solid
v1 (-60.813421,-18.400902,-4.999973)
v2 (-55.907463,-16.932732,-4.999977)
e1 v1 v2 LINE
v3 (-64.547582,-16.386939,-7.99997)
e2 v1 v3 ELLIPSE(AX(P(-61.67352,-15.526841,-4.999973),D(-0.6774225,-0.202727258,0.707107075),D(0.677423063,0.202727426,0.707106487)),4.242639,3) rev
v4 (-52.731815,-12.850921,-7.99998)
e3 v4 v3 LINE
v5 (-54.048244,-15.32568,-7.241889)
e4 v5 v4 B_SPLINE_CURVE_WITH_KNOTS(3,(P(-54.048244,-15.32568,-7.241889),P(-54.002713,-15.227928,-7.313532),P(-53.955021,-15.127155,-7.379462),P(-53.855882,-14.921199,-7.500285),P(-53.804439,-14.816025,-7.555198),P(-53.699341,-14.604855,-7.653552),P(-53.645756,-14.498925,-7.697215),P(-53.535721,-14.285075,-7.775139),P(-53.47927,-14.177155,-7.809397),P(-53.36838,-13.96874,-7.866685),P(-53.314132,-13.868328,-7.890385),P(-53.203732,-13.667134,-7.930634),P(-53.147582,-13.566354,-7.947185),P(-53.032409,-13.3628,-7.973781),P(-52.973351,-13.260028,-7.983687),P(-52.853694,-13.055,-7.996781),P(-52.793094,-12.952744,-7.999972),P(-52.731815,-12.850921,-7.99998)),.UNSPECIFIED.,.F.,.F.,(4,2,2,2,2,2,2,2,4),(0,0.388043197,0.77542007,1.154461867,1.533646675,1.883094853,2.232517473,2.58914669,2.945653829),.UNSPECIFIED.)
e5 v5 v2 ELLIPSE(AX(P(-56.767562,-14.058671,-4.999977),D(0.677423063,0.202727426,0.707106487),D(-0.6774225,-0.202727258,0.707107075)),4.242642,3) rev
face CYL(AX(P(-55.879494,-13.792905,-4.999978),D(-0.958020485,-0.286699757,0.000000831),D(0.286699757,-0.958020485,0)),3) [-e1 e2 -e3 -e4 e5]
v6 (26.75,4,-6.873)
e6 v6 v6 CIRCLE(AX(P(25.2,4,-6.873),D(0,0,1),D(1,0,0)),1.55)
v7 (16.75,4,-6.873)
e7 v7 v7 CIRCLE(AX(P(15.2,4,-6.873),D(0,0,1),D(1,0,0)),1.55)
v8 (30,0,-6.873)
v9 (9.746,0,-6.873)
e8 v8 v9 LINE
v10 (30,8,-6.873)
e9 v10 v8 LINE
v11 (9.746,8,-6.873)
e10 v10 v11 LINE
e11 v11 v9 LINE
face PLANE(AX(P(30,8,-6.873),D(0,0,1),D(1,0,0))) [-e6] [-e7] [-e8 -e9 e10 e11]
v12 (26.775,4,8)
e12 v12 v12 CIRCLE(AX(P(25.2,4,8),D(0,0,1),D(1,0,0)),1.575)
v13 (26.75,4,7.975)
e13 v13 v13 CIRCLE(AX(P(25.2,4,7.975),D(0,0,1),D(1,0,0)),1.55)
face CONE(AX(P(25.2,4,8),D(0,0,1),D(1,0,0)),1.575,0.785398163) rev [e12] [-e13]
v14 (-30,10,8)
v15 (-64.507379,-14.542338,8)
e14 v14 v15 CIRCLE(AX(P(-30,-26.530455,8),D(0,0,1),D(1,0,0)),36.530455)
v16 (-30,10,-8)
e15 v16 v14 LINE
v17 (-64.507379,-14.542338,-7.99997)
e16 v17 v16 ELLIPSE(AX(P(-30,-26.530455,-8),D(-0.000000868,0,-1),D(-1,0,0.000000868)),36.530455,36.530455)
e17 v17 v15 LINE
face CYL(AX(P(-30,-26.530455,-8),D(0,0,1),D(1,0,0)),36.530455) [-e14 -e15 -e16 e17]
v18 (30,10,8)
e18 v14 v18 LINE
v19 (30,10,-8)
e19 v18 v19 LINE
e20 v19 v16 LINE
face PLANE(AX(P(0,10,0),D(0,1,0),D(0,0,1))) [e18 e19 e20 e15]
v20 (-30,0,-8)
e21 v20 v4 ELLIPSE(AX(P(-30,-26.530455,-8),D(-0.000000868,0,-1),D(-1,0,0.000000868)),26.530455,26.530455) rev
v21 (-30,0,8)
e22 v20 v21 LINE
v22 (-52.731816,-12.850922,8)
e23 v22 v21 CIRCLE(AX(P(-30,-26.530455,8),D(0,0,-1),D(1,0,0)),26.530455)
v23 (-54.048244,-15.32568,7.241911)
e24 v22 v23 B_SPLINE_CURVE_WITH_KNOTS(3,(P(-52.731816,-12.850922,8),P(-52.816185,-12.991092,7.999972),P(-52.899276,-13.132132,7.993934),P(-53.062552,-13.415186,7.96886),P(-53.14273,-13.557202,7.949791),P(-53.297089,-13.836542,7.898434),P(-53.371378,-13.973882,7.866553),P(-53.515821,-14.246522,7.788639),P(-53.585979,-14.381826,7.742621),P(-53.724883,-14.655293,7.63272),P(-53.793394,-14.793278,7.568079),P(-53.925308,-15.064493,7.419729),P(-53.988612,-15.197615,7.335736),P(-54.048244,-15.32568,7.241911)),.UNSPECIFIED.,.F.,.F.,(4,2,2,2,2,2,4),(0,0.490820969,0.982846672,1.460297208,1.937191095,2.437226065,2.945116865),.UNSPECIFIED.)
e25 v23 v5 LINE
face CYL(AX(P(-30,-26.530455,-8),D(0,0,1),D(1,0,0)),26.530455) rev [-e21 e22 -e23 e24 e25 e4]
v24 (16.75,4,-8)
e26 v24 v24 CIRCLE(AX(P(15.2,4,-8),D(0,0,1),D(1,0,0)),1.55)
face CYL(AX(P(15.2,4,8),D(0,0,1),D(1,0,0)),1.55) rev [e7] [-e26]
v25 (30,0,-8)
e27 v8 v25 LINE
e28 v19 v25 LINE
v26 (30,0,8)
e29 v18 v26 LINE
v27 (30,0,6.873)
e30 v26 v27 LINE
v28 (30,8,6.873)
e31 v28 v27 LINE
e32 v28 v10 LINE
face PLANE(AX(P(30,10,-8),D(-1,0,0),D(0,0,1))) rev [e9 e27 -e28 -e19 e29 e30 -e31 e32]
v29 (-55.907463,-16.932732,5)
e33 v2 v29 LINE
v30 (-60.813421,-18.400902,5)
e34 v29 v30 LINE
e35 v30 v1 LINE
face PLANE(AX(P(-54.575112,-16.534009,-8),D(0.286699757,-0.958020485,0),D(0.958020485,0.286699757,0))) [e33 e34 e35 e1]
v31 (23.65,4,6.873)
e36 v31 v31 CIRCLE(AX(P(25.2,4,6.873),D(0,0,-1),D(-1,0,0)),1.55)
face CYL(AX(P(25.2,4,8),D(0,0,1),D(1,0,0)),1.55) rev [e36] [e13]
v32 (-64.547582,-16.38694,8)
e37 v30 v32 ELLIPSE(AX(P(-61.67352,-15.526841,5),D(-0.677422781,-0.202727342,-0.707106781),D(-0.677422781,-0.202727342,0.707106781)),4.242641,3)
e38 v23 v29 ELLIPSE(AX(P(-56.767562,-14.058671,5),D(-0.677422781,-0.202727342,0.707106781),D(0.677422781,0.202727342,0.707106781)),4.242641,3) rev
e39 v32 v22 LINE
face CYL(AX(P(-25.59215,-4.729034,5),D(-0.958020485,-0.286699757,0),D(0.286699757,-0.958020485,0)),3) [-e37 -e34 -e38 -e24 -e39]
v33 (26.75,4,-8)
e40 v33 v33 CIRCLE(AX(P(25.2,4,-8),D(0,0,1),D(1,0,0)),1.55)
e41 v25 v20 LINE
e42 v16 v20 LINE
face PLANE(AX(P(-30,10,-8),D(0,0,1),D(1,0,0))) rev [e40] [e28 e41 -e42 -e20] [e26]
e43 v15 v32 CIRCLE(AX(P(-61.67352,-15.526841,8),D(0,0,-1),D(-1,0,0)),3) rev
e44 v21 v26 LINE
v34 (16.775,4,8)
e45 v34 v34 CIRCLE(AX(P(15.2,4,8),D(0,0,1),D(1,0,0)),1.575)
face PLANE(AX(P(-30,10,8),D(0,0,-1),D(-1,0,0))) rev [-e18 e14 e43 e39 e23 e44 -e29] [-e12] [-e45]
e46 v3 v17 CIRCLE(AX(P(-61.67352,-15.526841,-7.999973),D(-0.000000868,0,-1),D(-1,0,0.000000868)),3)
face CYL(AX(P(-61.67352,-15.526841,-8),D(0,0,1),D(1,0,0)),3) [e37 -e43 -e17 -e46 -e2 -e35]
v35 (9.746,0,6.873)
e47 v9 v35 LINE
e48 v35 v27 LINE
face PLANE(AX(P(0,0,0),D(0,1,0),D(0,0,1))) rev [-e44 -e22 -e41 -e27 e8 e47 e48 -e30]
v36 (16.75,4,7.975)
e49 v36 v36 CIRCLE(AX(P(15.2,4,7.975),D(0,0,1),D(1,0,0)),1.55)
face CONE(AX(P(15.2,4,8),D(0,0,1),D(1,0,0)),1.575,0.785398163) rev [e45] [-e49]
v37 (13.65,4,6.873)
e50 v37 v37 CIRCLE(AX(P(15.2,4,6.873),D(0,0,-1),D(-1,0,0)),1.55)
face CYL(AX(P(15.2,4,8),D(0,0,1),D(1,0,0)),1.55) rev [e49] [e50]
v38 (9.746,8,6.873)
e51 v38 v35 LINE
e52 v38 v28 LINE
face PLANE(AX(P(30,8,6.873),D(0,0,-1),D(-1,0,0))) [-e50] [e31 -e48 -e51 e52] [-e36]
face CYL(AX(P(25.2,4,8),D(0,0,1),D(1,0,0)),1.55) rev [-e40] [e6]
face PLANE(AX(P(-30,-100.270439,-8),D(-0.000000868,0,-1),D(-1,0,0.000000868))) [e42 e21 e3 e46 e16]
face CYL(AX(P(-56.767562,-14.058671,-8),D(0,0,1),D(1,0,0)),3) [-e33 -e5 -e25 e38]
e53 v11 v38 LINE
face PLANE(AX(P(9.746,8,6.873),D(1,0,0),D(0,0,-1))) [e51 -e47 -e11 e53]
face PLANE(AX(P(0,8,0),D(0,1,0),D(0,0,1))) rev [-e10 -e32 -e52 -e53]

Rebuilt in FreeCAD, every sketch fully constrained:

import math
import FreeCAD as App
import Part
import Sketcher

V = App.Vector


def edges_at(feature, points):
    """Names of the edges that pass closest to the given points."""
    edges = feature.Shape.Edges
    near = lambda p: min(range(len(edges)), key=lambda i: edges[i].distToShape(Part.Vertex(*p))[0])
    return sorted({f"Edge{near(p) + 1}" for p in points})

doc = App.newDocument("Part")
body = doc.addObject("PartDesign::Body", "Body")

# Sketch on XZ plane
sketch1 = body.newObject("Sketcher::SketchObject", "Sketch")
sketch1.AttachmentSupport = (doc.getObject("XZ_Plane"), [""])
sketch1.MapMode = "FlatFace"
sketch1.addGeometry(Part.LineSegment(V(-30, -8, 0), V(-30, 8, 0)), False)
sketch1.addGeometry(Part.LineSegment(V(-30, 8, 0), V(30, 8, 0)), False)
sketch1.addGeometry(Part.LineSegment(V(30, 8, 0), V(30, -8, 0)), False)
sketch1.addGeometry(Part.LineSegment(V(30, -8, 0), V(-30, -8, 0)), False)
sketch1.addConstraint(Sketcher.Constraint("Coincident", 0, 2, 1, 1))
sketch1.addConstraint(Sketcher.Constraint("Coincident", 1, 2, 2, 1))
sketch1.addConstraint(Sketcher.Constraint("Coincident", 2, 2, 3, 1))
sketch1.addConstraint(Sketcher.Constraint("Coincident", 3, 2, 0, 1))
sketch1.addConstraint(Sketcher.Constraint("Vertical", 0))
sketch1.addConstraint(Sketcher.Constraint("Horizontal", 1))
sketch1.addConstraint(Sketcher.Constraint("Vertical", 2))
sketch1.addConstraint(Sketcher.Constraint("Horizontal", 3))
sketch1.addConstraint(Sketcher.Constraint("Symmetric", 0, 2, 2, 2, -1, 1))
sketch1.addConstraint(Sketcher.Constraint("DistanceX", 1, 1, 1, 2, 60.0))
sketch1.addConstraint(Sketcher.Constraint("DistanceY", 0, 1, 0, 2, 16.0))
pad1 = body.newObject("PartDesign::Pad", "Pad")
pad1.Profile = sketch1
pad1.Length = 10
pad1.Reversed = True

# Sketch on XZ plane
sketch2 = body.newObject("Sketcher::SketchObject", "Sketch001")
sketch2.AttachmentSupport = (doc.getObject("XZ_Plane"), [""])
sketch2.MapMode = "FlatFace"
sketch2.addGeometry(Part.LineSegment(V(10, -7, 0), V(10, 7, 0)), False)
sketch2.addGeometry(Part.LineSegment(V(10, 7, 0), V(30, 7, 0)), False)
sketch2.addGeometry(Part.LineSegment(V(30, 7, 0), V(30, -7, 0)), False)
sketch2.addGeometry(Part.LineSegment(V(30, -7, 0), V(10, -7, 0)), False)
sketch2.addConstraint(Sketcher.Constraint("Coincident", 0, 2, 1, 1))
sketch2.addConstraint(Sketcher.Constraint("Coincident", 1, 2, 2, 1))
sketch2.addConstraint(Sketcher.Constraint("Coincident", 2, 2, 3, 1))
sketch2.addConstraint(Sketcher.Constraint("Coincident", 3, 2, 0, 1))
sketch2.addConstraint(Sketcher.Constraint("Vertical", 0))
sketch2.addConstraint(Sketcher.Constraint("Horizontal", 1))
sketch2.addConstraint(Sketcher.Constraint("Vertical", 2))
sketch2.addConstraint(Sketcher.Constraint("Horizontal", 3))
sketch2.addConstraint(Sketcher.Constraint("DistanceX", -1, 1, 1, 2, 30.0))
sketch2.addConstraint(Sketcher.Constraint("DistanceX", 1, 1, 1, 2, 20.254))
sketch2.addConstraint(Sketcher.Constraint("DistanceY", 0, 1, 0, 2, 13.746))
sketch2.addConstraint(Sketcher.Constraint("DistanceY", -1, 1, 0, 2, 6.873))
pocket1 = body.newObject("PartDesign::Pocket", "Pocket")
pocket1.Profile = sketch2
pocket1.Length = 8

# Sketch on XY plane
sketch3 = body.newObject("Sketcher::SketchObject", "Sketch002")
sketch3.AttachmentSupport = (doc.getObject("XY_Plane"), [""])
sketch3.MapMode = "FlatFace"
sketch3.AttachmentOffset = App.Placement(V(0, 0, 8), App.Rotation())
sketch3.addGeometry(Part.Circle(V(15.2, 4, 0), V(0, 0, 1), 1.6), False)
sketch3.addGeometry(Part.Circle(V(25.2, 4, 0), V(0, 0, 1), 1.6), False)
sketch3.addConstraint(Sketcher.Constraint("Equal", 0, 1))
sketch3.addConstraint(Sketcher.Constraint("Horizontal", 0, 3, 1, 3))
sketch3.addConstraint(Sketcher.Constraint("Diameter", 0, 3.1))
sketch3.addConstraint(Sketcher.Constraint("DistanceY", -1, 1, 0, 3, 4.0))
sketch3.addConstraint(Sketcher.Constraint("DistanceX", 0, 3, 1, 3, 10.0))
sketch3.addConstraint(Sketcher.Constraint("DistanceX", -1, 1, 0, 3, 15.2))
doc.recompute()
hole = body.newObject("PartDesign::Hole", "Hole")
hole.Profile = sketch3
hole.ThreadType = "None"
hole.Diameter = 3.1
hole.DepthType = "ThroughAll"
hole.HoleCutType = "Countersink"
hole.HoleCutDiameter = 3.15
hole.HoleCutCountersinkAngle = 90

# Sketch on XZ plane
sketch4 = body.newObject("Sketcher::SketchObject", "Sketch003")
sketch4.AttachmentSupport = (doc.getObject("XZ_Plane"), [""])
sketch4.MapMode = "FlatFace"
sketch4.AttachmentOffset = App.Placement(V(0, 0, -10), App.Rotation())
sketch4.addGeometry(Part.LineSegment(V(-30, -8, 0), V(-104, -8, 0)), False)
sketch4.addGeometry(Part.LineSegment(V(-104, -8, 0), V(-104, 8, 0)), False)
sketch4.addGeometry(Part.LineSegment(V(-104, 8, 0), V(-30, 8, 0)), False)
sketch4.addGeometry(Part.LineSegment(V(-30, 8, 0), V(-30, -8, 0)), False)
sketch4.addConstraint(Sketcher.Constraint("Coincident", 0, 2, 1, 1))
sketch4.addConstraint(Sketcher.Constraint("Coincident", 1, 2, 2, 1))
sketch4.addConstraint(Sketcher.Constraint("Coincident", 2, 2, 3, 1))
sketch4.addConstraint(Sketcher.Constraint("Coincident", 3, 2, 0, 1))
sketch4.addConstraint(Sketcher.Constraint("Vertical", 1))
sketch4.addConstraint(Sketcher.Constraint("Horizontal", 2))
sketch4.addConstraint(Sketcher.Constraint("Vertical", 3))
sketch4.addConstraint(Sketcher.Constraint("DistanceY", 3, 2, 3, 1, 16.0))
sketch4.addConstraint(Sketcher.Constraint("DistanceY", -1, 1, 1, 2, 8.0))
sketch4.addConstraint(Sketcher.Constraint("DistanceX", 2, 2, -1, 1, 30.0))
sketch4.addConstraint(Sketcher.Constraint("DistanceX", 2, 1, 2, 2, 73.550248))
sketch4.addConstraint(Sketcher.Constraint("DistanceY", 1, 1, 1, 2, 15.999936))
pad2 = body.newObject("PartDesign::Pad", "Pad001")
pad2.Profile = sketch4
pad2.Length = 35

# Sketch on XY plane
sketch5 = body.newObject("Sketcher::SketchObject", "Sketch004")
sketch5.AttachmentSupport = (doc.getObject("XY_Plane"), [""])
sketch5.MapMode = "FlatFace"
sketch5.addGeometry(Part.LineSegment(V(-118, 25, 0), V(-118, -40, 0)), False)
sketch5.addGeometry(Part.LineSegment(V(-118, -40, 0), V(45, -40, 0)), False)
sketch5.addGeometry(Part.LineSegment(V(45, -40, 0), V(45, 25, 0)), False)
sketch5.addGeometry(Part.LineSegment(V(45, 25, 0), V(-118, 25, 0)), False)
sketch5.addGeometry(Part.LineSegment(V(30, 10, 0), V(30, 0, 0)), False)
sketch5.addGeometry(Part.LineSegment(V(30, 0, 0), V(-30, 0, 0)), False)
sketch5.addGeometry(Part.ArcOfCircle(Part.Circle(V(-30, -27, 0), V(0, 0, 1), 27), math.radians(90), math.radians(158)), False)
sketch5.addGeometry(Part.LineSegment(V(-55, -17, 0), V(-66, -20, 0)), False)
sketch5.addGeometry(Part.ArcOfCircle(Part.Circle(V(-30, -27, 0), V(0, 0, 1), 37), math.radians(90), math.radians(170)), False)
sketch5.addGeometry(Part.LineSegment(V(-30, 10, 0), V(30, 10, 0)), False)
sketch5.addConstraint(Sketcher.Constraint("Coincident", 0, 2, 1, 1))
sketch5.addConstraint(Sketcher.Constraint("Coincident", 1, 2, 2, 1))
sketch5.addConstraint(Sketcher.Constraint("Coincident", 2, 2, 3, 1))
sketch5.addConstraint(Sketcher.Constraint("Coincident", 3, 2, 0, 1))
sketch5.addConstraint(Sketcher.Constraint("Coincident", 4, 2, 5, 1))
sketch5.addConstraint(Sketcher.Constraint("Tangent", 5, 2, 6, 1))
sketch5.addConstraint(Sketcher.Constraint("Coincident", 6, 2, 7, 1))
sketch5.addConstraint(Sketcher.Constraint("Coincident", 7, 2, 8, 2))
sketch5.addConstraint(Sketcher.Constraint("Tangent", 8, 1, 9, 1))
sketch5.addConstraint(Sketcher.Constraint("Coincident", 9, 2, 4, 1))
sketch5.addConstraint(Sketcher.Constraint("Vertical", 0))
sketch5.addConstraint(Sketcher.Constraint("Horizontal", 1))
sketch5.addConstraint(Sketcher.Constraint("Vertical", 2))
sketch5.addConstraint(Sketcher.Constraint("Horizontal", 3))
sketch5.addConstraint(Sketcher.Constraint("Vertical", 4))
sketch5.addConstraint(Sketcher.Constraint("Horizontal", 5))
sketch5.addConstraint(Sketcher.Constraint("Horizontal", 9))
sketch5.addConstraint(Sketcher.Constraint("Coincident", 8, 3, 6, 3))
sketch5.addConstraint(Sketcher.Constraint("Symmetric", 4, 2, 5, 2, -1, 1))
sketch5.addConstraint(Sketcher.Constraint("DistanceX", 5, 2, 5, 1, 60.0))
sketch5.addConstraint(Sketcher.Constraint("DistanceY", 4, 2, 4, 1, 10.0))
sketch5.addConstraint(Sketcher.Constraint("DistanceX", 1, 1, 1, 2, 163.346))
sketch5.addConstraint(Sketcher.Constraint("DistanceY", 0, 2, 0, 1, 64.796))
sketch5.addConstraint(Sketcher.Constraint("DistanceX", 0, 2, -1, 1, 118.448))
sketch5.addConstraint(Sketcher.Constraint("DistanceY", 0, 2, -1, 1, 39.898))
sketch5.addConstraint(Sketcher.Constraint("Radius", 6, 26.530455))
sketch5.addConstraint(Sketcher.Constraint("DistanceX", 6, 2, -1, 1, 54.575112))
sketch5.addConstraint(Sketcher.Constraint("DistanceX", 7, 2, 6, 2, 11.354461))
pocket2 = body.newObject("PartDesign::Pocket", "Pocket001")
pocket2.Profile = sketch5
pocket2.Type = "ThroughAll"
pocket2.Midplane = True
doc.recompute()

fillet = body.newObject("PartDesign::Fillet", "Fillet")
fillet.Base = (pocket2, edges_at(pocket2, [
    (-54.575, -16.534, 0),
    (-60.252, -18.233, -8),
    (-65.93, -19.932, 0),
    (-60.252, -18.233, 8),
]))
fillet.Radius = 3

doc.recompute()
